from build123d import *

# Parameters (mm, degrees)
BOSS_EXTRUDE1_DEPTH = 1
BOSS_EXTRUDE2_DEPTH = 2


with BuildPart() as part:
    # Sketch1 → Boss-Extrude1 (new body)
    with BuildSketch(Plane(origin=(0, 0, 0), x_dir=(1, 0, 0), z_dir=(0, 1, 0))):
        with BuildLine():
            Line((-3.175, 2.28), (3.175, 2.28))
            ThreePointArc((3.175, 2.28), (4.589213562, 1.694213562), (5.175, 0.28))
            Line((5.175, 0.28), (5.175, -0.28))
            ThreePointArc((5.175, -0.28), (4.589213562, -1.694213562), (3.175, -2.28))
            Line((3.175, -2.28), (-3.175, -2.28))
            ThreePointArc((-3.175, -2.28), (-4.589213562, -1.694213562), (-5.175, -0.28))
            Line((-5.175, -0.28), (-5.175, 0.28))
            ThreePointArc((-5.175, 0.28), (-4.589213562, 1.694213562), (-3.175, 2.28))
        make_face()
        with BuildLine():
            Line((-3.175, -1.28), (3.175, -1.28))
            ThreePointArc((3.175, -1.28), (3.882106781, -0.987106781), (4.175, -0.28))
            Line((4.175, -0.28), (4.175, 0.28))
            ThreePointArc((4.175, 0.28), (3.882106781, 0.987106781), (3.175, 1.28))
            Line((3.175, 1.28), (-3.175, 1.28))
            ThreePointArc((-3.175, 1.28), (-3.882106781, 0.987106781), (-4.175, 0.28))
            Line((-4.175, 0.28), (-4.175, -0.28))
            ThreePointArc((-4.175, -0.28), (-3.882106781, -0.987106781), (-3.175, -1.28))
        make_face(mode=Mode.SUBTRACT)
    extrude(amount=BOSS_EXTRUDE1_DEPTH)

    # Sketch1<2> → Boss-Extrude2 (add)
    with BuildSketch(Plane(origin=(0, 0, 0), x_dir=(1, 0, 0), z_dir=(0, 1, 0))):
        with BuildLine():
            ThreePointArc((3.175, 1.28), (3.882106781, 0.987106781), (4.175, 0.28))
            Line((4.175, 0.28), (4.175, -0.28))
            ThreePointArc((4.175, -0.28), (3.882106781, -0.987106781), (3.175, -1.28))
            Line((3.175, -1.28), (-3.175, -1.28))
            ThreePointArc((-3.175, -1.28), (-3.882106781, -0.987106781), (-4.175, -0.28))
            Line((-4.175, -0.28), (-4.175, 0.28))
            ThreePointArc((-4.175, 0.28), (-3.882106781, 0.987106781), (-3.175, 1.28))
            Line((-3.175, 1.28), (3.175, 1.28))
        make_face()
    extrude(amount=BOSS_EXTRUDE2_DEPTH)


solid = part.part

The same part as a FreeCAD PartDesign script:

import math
import FreeCAD as App
import Part
import Sketcher

V = App.Vector
Q = App.Units.Quantity

doc = App.newDocument("Part")
params = doc.addObject("Spreadsheet::Sheet", "Params")
for row, (alias, value) in enumerate([
    ("sketch1_radius", "2 mm"),
    ("sketch1_radius2", "1 mm"),
    ("sketch1_width", "6.35 mm"),
    ("sketch1_height", "0.56 mm"),
    ("pad1_length", "1 mm"),
    ("sketch2_radius", "1 mm"),
    ("sketch2_width", "6.35 mm"),
    ("sketch2_height", "0.56 mm"),
    ("pad2_length", "2 mm"),
], start=1):
    params.set(f"A{row}", alias)
    params.set(f"B{row}", "=" + value)
    params.setAlias(f"B{row}", alias)

body = doc.addObject("PartDesign::Body", "Body")

sketch1 = body.newObject("Sketcher::SketchObject", "Sketch")
sketch1.AttachmentSupport = (doc.getObject("XZ_Plane"), [""])
sketch1.MapMode = "FlatFace"
sketch1.addGeometry([
    Part.LineSegment(V(3.2, -2.3, 0), V(-3.2, -2.3, 0)),
    Part.ArcOfCircle(Part.Circle(V(-3.2, -0.3, 0), V(0, 0, 1), 2), math.radians(-180), math.radians(-90)),
    Part.LineSegment(V(-5.2, -0.3, 0), V(-5.2, 0.3, 0)),
    Part.ArcOfCircle(Part.Circle(V(-3.2, 0.3, 0), V(0, 0, 1), 2), math.radians(90), math.radians(180)),
    Part.LineSegment(V(-3.2, 2.3, 0), V(3.2, 2.3, 0)),
    Part.ArcOfCircle(Part.Circle(V(3.2, 0.3, 0), V(0, 0, 1), 2), math.radians(0), math.radians(90)),
    Part.LineSegment(V(5.2, 0.3, 0), V(5.2, -0.3, 0)),
    Part.ArcOfCircle(Part.Circle(V(3.2, -0.3, 0), V(0, 0, 1), 2), math.radians(-90), math.radians(0)),
    Part.ArcOfCircle(Part.Circle(V(-3.2, 0.3, 0), V(0, 0, 1), 1), math.radians(90), math.radians(180)),
    Part.LineSegment(V(-4.2, 0.3, 0), V(-4.2, -0.3, 0)),
    Part.ArcOfCircle(Part.Circle(V(-3.2, -0.3, 0), V(0, 0, 1), 1), math.radians(-180), math.radians(-90)),
    Part.LineSegment(V(-3.2, -1.3, 0), V(3.2, -1.3, 0)),
    Part.ArcOfCircle(Part.Circle(V(3.2, -0.3, 0), V(0, 0, 1), 1), math.radians(-90), math.radians(0)),
    Part.LineSegment(V(4.2, -0.3, 0), V(4.2, 0.3, 0)),
    Part.ArcOfCircle(Part.Circle(V(3.2, 0.3, 0), V(0, 0, 1), 1), math.radians(0), math.radians(90)),
    Part.LineSegment(V(3.2, 1.3, 0), V(-3.2, 1.3, 0)),
], False)
sketch1.addConstraint([
    Sketcher.Constraint("Tangent", 0, 2, 1, 2),
    Sketcher.Constraint("Tangent", 1, 1, 2, 1),
    Sketcher.Constraint("Tangent", 2, 2, 3, 2),
    Sketcher.Constraint("Tangent", 3, 1, 4, 1),
    Sketcher.Constraint("Tangent", 4, 2, 5, 2),
    Sketcher.Constraint("Tangent", 5, 1, 6, 1),
    Sketcher.Constraint("Tangent", 6, 2, 7, 2),
    Sketcher.Constraint("Tangent", 7, 1, 0, 1),
    Sketcher.Constraint("Tangent", 8, 2, 9, 1),
    Sketcher.Constraint("Tangent", 9, 2, 10, 1),
    Sketcher.Constraint("Tangent", 10, 2, 11, 1),
    Sketcher.Constraint("Tangent", 11, 2, 12, 1),
    Sketcher.Constraint("Tangent", 12, 2, 13, 1),
    Sketcher.Constraint("Tangent", 13, 2, 14, 1),
    Sketcher.Constraint("Tangent", 14, 2, 15, 1),
    Sketcher.Constraint("Tangent", 15, 2, 8, 1),
    Sketcher.Constraint("Horizontal", 0),
    Sketcher.Constraint("Vertical", 2),
    Sketcher.Constraint("Horizontal", 4),
    Sketcher.Constraint("Vertical", 6),
    Sketcher.Constraint("Vertical", 9),
    Sketcher.Constraint("Horizontal", 11),
    Sketcher.Constraint("Vertical", 13),
    Sketcher.Constraint("Horizontal", 15),
    Sketcher.Constraint("Coincident", 8, 3, 3, 3),
    Sketcher.Constraint("Coincident", 10, 3, 1, 3),
    Sketcher.Constraint("Coincident", 12, 3, 7, 3),
    Sketcher.Constraint("Equal", 1, 3),
    Sketcher.Constraint("Equal", 3, 5),
    Sketcher.Constraint("Equal", 5, 7),
    Sketcher.Constraint("Equal", 12, 14),
    Sketcher.Constraint("Symmetric", 1, 3, 5, 3, -1, 1),
    Sketcher.Constraint("Radius", 1, Q("2 mm")),
    Sketcher.Constraint("Radius", 8, Q("1 mm")),
    Sketcher.Constraint("DistanceX", 0, 2, 0, 1, Q("6.35 mm")),
    Sketcher.Constraint("DistanceY", 2, 1, 2, 2, Q("0.56 mm")),
])
sketch1.setExpression("Constraints[32]", "Params.sketch1_radius")
sketch1.setExpression("Constraints[33]", "Params.sketch1_radius2")
sketch1.setExpression("Constraints[34]", "Params.sketch1_width")
sketch1.setExpression("Constraints[35]", "Params.sketch1_height")
pad1 = body.newObject("PartDesign::Pad", "Pad")
pad1.Profile = sketch1
pad1.setExpression("Length", "Params.pad1_length")
pad1.Reversed = True

sketch2 = body.newObject("Sketcher::SketchObject", "Sketch001")
sketch2.AttachmentSupport = (doc.getObject("XZ_Plane"), [""])
sketch2.MapMode = "FlatFace"
sketch2.addGeometry([
    Part.ArcOfCircle(Part.Circle(V(3.2, -0.3, 0), V(0, 0, 1), 1), math.radians(-90), math.radians(0)),
    Part.LineSegment(V(3.2, -1.3, 0), V(-3.2, -1.3, 0)),
    Part.ArcOfCircle(Part.Circle(V(-3.2, -0.3, 0), V(0, 0, 1), 1), math.radians(-180), math.radians(-90)),
    Part.LineSegment(V(-4.2, -0.3, 0), V(-4.2, 0.3, 0)),
    Part.ArcOfCircle(Part.Circle(V(-3.2, 0.3, 0), V(0, 0, 1), 1), math.radians(90), math.radians(180)),
    Part.LineSegment(V(-3.2, 1.3, 0), V(3.2, 1.3, 0)),
    Part.ArcOfCircle(Part.Circle(V(3.2, 0.3, 0), V(0, 0, 1), 1), math.radians(0), math.radians(90)),
    Part.LineSegment(V(4.2, 0.3, 0), V(4.2, -0.3, 0)),
], False)
sketch2.addConstraint([
    Sketcher.Constraint("Tangent", 0, 1, 1, 1),
    Sketcher.Constraint("Tangent", 1, 2, 2, 2),
    Sketcher.Constraint("Tangent", 2, 1, 3, 1),
    Sketcher.Constraint("Tangent", 3, 2, 4, 2),
    Sketcher.Constraint("Tangent", 4, 1, 5, 1),
    Sketcher.Constraint("Tangent", 5, 2, 6, 2),
    Sketcher.Constraint("Tangent", 6, 1, 7, 1),
    Sketcher.Constraint("Tangent", 7, 2, 0, 2),
    Sketcher.Constraint("Horizontal", 1),
    Sketcher.Constraint("Vertical", 3),
    Sketcher.Constraint("Horizontal", 5),
    Sketcher.Constraint("Vertical", 7),
    Sketcher.Constraint("Equal", 0, 2),
    Sketcher.Constraint("Equal", 2, 4),
    Sketcher.Constraint("Equal", 4, 6),
    Sketcher.Constraint("Symmetric", 0, 3, 4, 3, -1, 1),
    Sketcher.Constraint("Radius", 0, Q("1 mm")),
    Sketcher.Constraint("DistanceX", 1, 2, 1, 1, Q("6.35 mm")),
    Sketcher.Constraint("DistanceY", 3, 1, 3, 2, Q("0.56 mm")),
])
sketch2.setExpression("Constraints[16]", "Params.sketch2_radius")
sketch2.setExpression("Constraints[17]", "Params.sketch2_width")
sketch2.setExpression("Constraints[18]", "Params.sketch2_height")
pad2 = body.newObject("PartDesign::Pad", "Pad001")
pad2.Profile = sketch2
pad2.setExpression("Length", "Params.pad2_length")
pad2.Reversed = True

doc.recompute()
